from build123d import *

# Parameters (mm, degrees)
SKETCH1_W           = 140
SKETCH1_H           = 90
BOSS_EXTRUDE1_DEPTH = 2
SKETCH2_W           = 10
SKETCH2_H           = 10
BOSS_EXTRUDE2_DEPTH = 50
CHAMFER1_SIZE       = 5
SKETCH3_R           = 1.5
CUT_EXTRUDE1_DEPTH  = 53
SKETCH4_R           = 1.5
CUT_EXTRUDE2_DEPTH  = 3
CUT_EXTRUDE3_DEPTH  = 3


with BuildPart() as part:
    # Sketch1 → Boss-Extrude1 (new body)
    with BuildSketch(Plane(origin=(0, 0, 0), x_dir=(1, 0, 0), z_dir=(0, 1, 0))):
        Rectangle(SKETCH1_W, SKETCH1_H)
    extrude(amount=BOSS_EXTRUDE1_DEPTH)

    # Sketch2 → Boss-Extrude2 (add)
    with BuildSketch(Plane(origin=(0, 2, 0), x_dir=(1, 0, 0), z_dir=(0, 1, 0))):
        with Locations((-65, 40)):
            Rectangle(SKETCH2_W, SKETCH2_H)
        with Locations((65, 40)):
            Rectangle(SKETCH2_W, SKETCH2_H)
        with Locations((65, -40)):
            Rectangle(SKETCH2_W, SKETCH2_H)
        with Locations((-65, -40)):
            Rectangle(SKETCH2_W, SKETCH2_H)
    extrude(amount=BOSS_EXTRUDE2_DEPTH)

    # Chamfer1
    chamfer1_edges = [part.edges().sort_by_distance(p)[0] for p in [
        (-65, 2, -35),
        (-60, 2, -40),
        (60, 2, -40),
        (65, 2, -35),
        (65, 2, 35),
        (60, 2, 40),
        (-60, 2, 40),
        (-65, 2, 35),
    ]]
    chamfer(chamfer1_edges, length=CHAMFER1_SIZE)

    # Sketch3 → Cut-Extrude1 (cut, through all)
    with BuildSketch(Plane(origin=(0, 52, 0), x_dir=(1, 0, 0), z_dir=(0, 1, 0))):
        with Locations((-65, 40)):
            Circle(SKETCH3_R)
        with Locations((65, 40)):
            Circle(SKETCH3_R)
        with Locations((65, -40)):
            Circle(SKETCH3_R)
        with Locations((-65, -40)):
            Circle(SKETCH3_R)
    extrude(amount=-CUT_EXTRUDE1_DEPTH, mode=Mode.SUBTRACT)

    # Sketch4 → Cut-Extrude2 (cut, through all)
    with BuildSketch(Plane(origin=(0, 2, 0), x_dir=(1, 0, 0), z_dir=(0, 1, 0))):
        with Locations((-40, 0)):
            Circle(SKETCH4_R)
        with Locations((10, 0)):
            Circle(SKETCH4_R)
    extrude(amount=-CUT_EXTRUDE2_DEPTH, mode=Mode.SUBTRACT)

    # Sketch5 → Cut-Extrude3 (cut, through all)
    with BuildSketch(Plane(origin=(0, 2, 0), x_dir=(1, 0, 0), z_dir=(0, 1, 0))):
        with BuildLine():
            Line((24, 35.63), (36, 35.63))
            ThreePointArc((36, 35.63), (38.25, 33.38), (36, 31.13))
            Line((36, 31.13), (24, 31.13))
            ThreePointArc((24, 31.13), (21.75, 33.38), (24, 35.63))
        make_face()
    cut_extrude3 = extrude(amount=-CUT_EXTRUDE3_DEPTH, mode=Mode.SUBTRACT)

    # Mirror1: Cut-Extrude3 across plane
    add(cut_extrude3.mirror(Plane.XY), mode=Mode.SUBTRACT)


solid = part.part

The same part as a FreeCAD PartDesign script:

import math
import FreeCAD as App
import Part
import Sketcher

V = App.Vector


def edges_at(feature, points):
    """Names of the edges that pass closest to the given points."""
    edges = feature.Shape.Edges
    near = lambda p: min(range(len(edges)), key=lambda i: edges[i].distToShape(Part.Vertex(*p))[0])
    return sorted({f"Edge{near(p) + 1}" for p in points})


def add_polygon(sketch, points):
    """Adds a closed chain of lines whose ends are joined by coincident constraints."""
    first, n = sketch.GeometryCount, len(points)
    for a, b in zip(points, points[1:] + points[:1]):
        sketch.addGeometry(Part.LineSegment(App.Vector(*a, 0), App.Vector(*b, 0)), False)
    for i in range(n):
        sketch.addConstraint(Sketcher.Constraint("Coincident", first + i, 2, first + (i + 1) % n, 1))

doc = App.newDocument("Part")
body = doc.addObject("PartDesign::Body", "Body")

sketch1 = body.newObject("Sketcher::SketchObject", "Sketch")
sketch1.AttachmentSupport = (doc.getObject("XZ_Plane"), [""])
sketch1.MapMode = "FlatFace"
add_polygon(sketch1, [(-70, -45), (-70, 45), (70, 45), (70, -45)])
sketch1.addConstraint([
    Sketcher.Constraint("Vertical", 0),
    Sketcher.Constraint("Horizontal", 1),
    Sketcher.Constraint("Vertical", 2),
    Sketcher.Constraint("Horizontal", 3),
    Sketcher.Constraint("Symmetric", 0, 2, 2, 2, -1, 1),
    Sketcher.Constraint("DistanceX", 1, 1, 1, 2, 140.0),
    Sketcher.Constraint("DistanceY", 0, 1, 0, 2, 90.0),
])
pad1 = body.newObject("PartDesign::Pad", "Pad")
pad1.Profile = sketch1
pad1.Length = 2
pad1.Reversed = True

sketch2 = body.newObject("Sketcher::SketchObject", "Sketch001")
sketch2.AttachmentSupport = (doc.getObject("XZ_Plane"), [""])
sketch2.MapMode = "FlatFace"
sketch2.AttachmentOffset = App.Placement(V(0, 0, -2), App.Rotation())
add_polygon(sketch2, [(-70, -45), (-70, -35), (-60, -35), (-60, -45)])
add_polygon(sketch2, [(60, -45), (60, -35), (70, -35), (70, -45)])
add_polygon(sketch2, [(60, 35), (60, 45), (70, 45), (70, 35)])
add_polygon(sketch2, [(-70, 35), (-70, 45), (-60, 45), (-60, 35)])
sketch2.addConstraint([
    Sketcher.Constraint("Vertical", 0),
    Sketcher.Constraint("Horizontal", 1),
    Sketcher.Constraint("Vertical", 2),
    Sketcher.Constraint("Horizontal", 3),
    Sketcher.Constraint("Vertical", 4),
    Sketcher.Constraint("Horizontal", 5),
    Sketcher.Constraint("Vertical", 6),
    Sketcher.Constraint("Horizontal", 7),
    Sketcher.Constraint("Vertical", 8),
    Sketcher.Constraint("Horizontal", 9),
    Sketcher.Constraint("Vertical", 10),
    Sketcher.Constraint("Horizontal", 11),
    Sketcher.Constraint("Vertical", 12),
    Sketcher.Constraint("Horizontal", 13),
    Sketcher.Constraint("Vertical", 14),
    Sketcher.Constraint("Horizontal", 15),
    Sketcher.Constraint("Symmetric", 2, 2, 8, 2, -1, 1),
    Sketcher.Constraint("Symmetric", 0, 2, 10, 2, -1, 1),
    Sketcher.Constraint("Symmetric", 6, 2, 12, 2, -1, 1),
    Sketcher.Constraint("Symmetric", 4, 2, 14, 2, -1, 1),
    Sketcher.Constraint("Symmetric", 1, 2, 4, 2, -2),
    Sketcher.Constraint("Symmetric", 3, 2, 6, 2, -2),
    Sketcher.Constraint("Equal", 15, 0),
    Sketcher.Constraint("DistanceX", 1, 1, 1, 2, 10.0),
    Sketcher.Constraint("DistanceX", 0, 2, -1, 1, 70.0),
    Sketcher.Constraint("DistanceY", 0, 2, -1, 1, 35.0),
])
pad2 = body.newObject("PartDesign::Pad", "Pad001")
pad2.Profile = sketch2
pad2.Length = 50
pad2.Reversed = True
doc.recompute()

chamfer = body.newObject("PartDesign::Chamfer", "Chamfer")
chamfer.Base = (pad2, edges_at(pad2, [
    (-65, 2, -35),
    (-60, 2, -40),
    (60, 2, -40),
    (65, 2, -35),
    (65, 2, 35),
    (60, 2, 40),
    (-60, 2, 40),
    (-65, 2, 35),
]))
chamfer.Size = 5

sketch3 = body.newObject("Sketcher::SketchObject", "Sketch002")
sketch3.AttachmentSupport = (doc.getObject("XZ_Plane"), [""])
sketch3.MapMode = "FlatFace"
sketch3.AttachmentOffset = App.Placement(V(0, 0, -52), App.Rotation())
sketch3.addGeometry([
    Part.Circle(V(-65, -40, 0), V(0, 0, 1), 1.5),
    Part.Circle(V(65, -40, 0), V(0, 0, 1), 1.5),
    Part.Circle(V(65, 40, 0), V(0, 0, 1), 1.5),
    Part.Circle(V(-65, 40, 0), V(0, 0, 1), 1.5),
], False)
sketch3.addConstraint([
    Sketcher.Constraint("Equal", 0, 1),
    Sketcher.Constraint("Equal", 1, 2),
    Sketcher.Constraint("Equal", 2, 3),
    Sketcher.Constraint("Symmetric", 0, 3, 2, 3, -1, 1),
    Sketcher.Constraint("Symmetric", 1, 3, 3, 3, -1, 1),
    Sketcher.Constraint("Symmetric", 0, 3, 1, 3, -2),
    Sketcher.Constraint("Diameter", 0, 3.0),
    Sketcher.Constraint("DistanceX", 0, 3, -1, 1, 65.0),
    Sketcher.Constraint("DistanceY", 0, 3, -1, 1, 40.0),
])
pocket1 = body.newObject("PartDesign::Pocket", "Pocket")
pocket1.Profile = sketch3
pocket1.Type = "ThroughAll"
pocket1.Reversed = True

sketch4 = body.newObject("Sketcher::SketchObject", "Sketch003")
sketch4.AttachmentSupport = (doc.getObject("XZ_Plane"), [""])
sketch4.MapMode = "FlatFace"
sketch4.AttachmentOffset = App.Placement(V(0, 0, -2), App.Rotation())
sketch4.addGeometry([
    Part.Circle(V(-40, 0, 0), V(0, 0, 1), 1.5),
    Part.Circle(V(10, 0, 0), V(0, 0, 1), 1.5),
], False)
sketch4.addConstraint([
    Sketcher.Constraint("Equal", 0, 1),
    Sketcher.Constraint("PointOnObject", 0, 3, -1),
    Sketcher.Constraint("PointOnObject", 1, 3, -1),
    Sketcher.Constraint("Diameter", 0, 3.0),
    Sketcher.Constraint("DistanceX", 0, 3, -1, 1, 40.0),
    Sketcher.Constraint("DistanceX", -1, 1, 1, 3, 10.0),
])
pocket2 = body.newObject("PartDesign::Pocket", "Pocket001")
pocket2.Profile = sketch4
pocket2.Type = "ThroughAll"
pocket2.Reversed = True

sketch5 = body.newObject("Sketcher::SketchObject", "Sketch004")
sketch5.AttachmentSupport = (doc.getObject("XZ_Plane"), [""])
sketch5.MapMode = "FlatFace"
sketch5.AttachmentOffset = App.Placement(V(0, 0, -2), App.Rotation())
sketch5.addGeometry([
    Part.LineSegment(V(36, -35.6, 0), V(24, -35.6, 0)),
    Part.ArcOfCircle(Part.Circle(V(24, -33.4, 0), V(0, 0, 1), 2.2), math.radians(90), math.radians(270)),
    Part.LineSegment(V(24, -31.1, 0), V(36, -31.1, 0)),
    Part.ArcOfCircle(Part.Circle(V(36, -33.4, 0), V(0, 0, 1), 2.2), math.radians(-90), math.radians(90)),
], False)
sketch5.addConstraint([
    Sketcher.Constraint("Tangent", 0, 2, 1, 2),
    Sketcher.Constraint("Tangent", 1, 1, 2, 1),
    Sketcher.Constraint("Tangent", 2, 2, 3, 2),
    Sketcher.Constraint("Tangent", 3, 1, 0, 1),
    Sketcher.Constraint("Horizontal", 0),
    Sketcher.Constraint("Horizontal", 2),
    Sketcher.Constraint("DistanceX", 0, 2, 0, 1, 12.0),
    Sketcher.Constraint("Radius", 1, 2.25),
    Sketcher.Constraint("DistanceX", -1, 1, 1, 3, 24.0),
    Sketcher.Constraint("DistanceY", 1, 3, -1, 1, 33.38),
])
pocket3 = body.newObject("PartDesign::Pocket", "Pocket002")
pocket3.Profile = sketch5
pocket3.Type = "ThroughAll"
pocket3.Reversed = True
doc.recompute()

mirrored = body.newObject("PartDesign::Mirrored", "Mirrored")
mirrored.Originals = [pocket3]
mirrored.MirrorPlane = (doc.getObject("XY_Plane"), [""])
body.Tip = mirrored

doc.recompute()
